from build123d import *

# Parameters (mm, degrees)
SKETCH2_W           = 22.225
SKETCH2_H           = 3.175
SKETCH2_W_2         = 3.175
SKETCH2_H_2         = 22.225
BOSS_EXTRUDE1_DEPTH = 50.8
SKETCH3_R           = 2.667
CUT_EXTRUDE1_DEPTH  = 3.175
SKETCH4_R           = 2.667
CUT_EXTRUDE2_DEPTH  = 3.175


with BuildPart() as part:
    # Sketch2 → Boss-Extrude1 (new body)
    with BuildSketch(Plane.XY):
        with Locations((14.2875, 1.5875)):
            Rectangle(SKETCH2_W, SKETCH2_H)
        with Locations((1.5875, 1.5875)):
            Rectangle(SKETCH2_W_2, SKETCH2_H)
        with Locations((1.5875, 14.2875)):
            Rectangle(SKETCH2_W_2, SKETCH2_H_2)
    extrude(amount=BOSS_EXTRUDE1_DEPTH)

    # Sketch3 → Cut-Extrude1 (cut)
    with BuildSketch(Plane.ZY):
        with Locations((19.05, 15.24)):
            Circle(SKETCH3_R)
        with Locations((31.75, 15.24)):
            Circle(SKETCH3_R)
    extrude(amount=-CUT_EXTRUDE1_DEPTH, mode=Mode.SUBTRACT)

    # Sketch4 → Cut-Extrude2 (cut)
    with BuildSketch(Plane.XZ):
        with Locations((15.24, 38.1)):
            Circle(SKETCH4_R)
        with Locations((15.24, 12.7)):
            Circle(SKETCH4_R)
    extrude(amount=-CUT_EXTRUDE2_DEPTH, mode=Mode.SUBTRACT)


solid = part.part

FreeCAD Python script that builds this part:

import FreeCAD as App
import Part
import Sketcher
from FreeCAD import Vector
Q = App.Units.Quantity

doc = App.newDocument("Part")
body = doc.addObject("PartDesign::Body", "Body")

sketch1 = body.newObject("Sketcher::SketchObject", "Sketch")
sketch1.AttachmentSupport = (doc.getObject("XY_Plane"), [""])
sketch1.MapMode = "FlatFace"
sketch1.addGeometry([
    Part.LineSegment(Vector(25.4, 0, 0), Vector(25.4, 3.2, 0)),
    Part.LineSegment(Vector(25.4, 3.2, 0), Vector(3.2, 3.2, 0)),
    Part.LineSegment(Vector(3.2, 3.2, 0), Vector(3.2, 25.4, 0)),
    Part.LineSegment(Vector(3.2, 25.4, 0), Vector(0, 25.4, 0)),
    Part.LineSegment(Vector(0, 25.4, 0), Vector(0, 0, 0)),
    Part.LineSegment(Vector(0, 0, 0), Vector(25.4, 0, 0)),
], False)
sketch1.addConstraint([
    Sketcher.Constraint("Coincident", 0, 2, 1, 1),
    Sketcher.Constraint("Coincident", 1, 2, 2, 1),
    Sketcher.Constraint("Coincident", 2, 2, 3, 1),
    Sketcher.Constraint("Coincident", 3, 2, 4, 1),
    Sketcher.Constraint("Coincident", 4, 2, 5, 1),
    Sketcher.Constraint("Coincident", 5, 2, 0, 1),
    Sketcher.Constraint("Vertical", 0),
    Sketcher.Constraint("Horizontal", 1),
    Sketcher.Constraint("Vertical", 2),
    Sketcher.Constraint("Horizontal", 3),
    Sketcher.Constraint("Vertical", 4),
    Sketcher.Constraint("Horizontal", 5),
    Sketcher.Constraint("Coincident", 4, 2, -1, 1),
    Sketcher.Constraint("Equal", 3, 0),
    Sketcher.Constraint("Equal", 1, 2),
    Sketcher.Constraint("DistanceX", 5, 1, 5, 2, Q("1 in")),
    Sketcher.Constraint("DistanceX", 1, 2, 1, 1, Q("0.875 in")),
])
pad1 = body.newObject("PartDesign::Pad", "Pad")
pad1.Profile = sketch1
pad1.Length = Q("2 in")

sketch2 = body.newObject("Sketcher::SketchObject", "Sketch001")
sketch2.AttachmentSupport = (doc.getObject("YZ_Plane"), [""])
sketch2.MapMode = "FlatFace"
sketch2.addGeometry([
    Part.Circle(Vector(15.2, 19.1, 0), Vector(0, 0, 1), 2.7),
    Part.Circle(Vector(15.2, 31.8, 0), Vector(0, 0, 1), 2.7),
], False)
sketch2.addConstraint([
    Sketcher.Constraint("Equal", 0, 1),
    Sketcher.Constraint("Vertical", 0, 3, 1, 3),
    Sketcher.Constraint("Diameter", 0, Q("0.21 in")),
    Sketcher.Constraint("DistanceX", -1, 1, 0, 3, Q("0.6 in")),
    Sketcher.Constraint("DistanceY", 0, 3, 1, 3, Q("0.5 in")),
    Sketcher.Constraint("DistanceY", -1, 1, 0, 3, Q("0.75 in")),
])
pocket1 = body.newObject("PartDesign::Pocket", "Pocket")
pocket1.Profile = sketch2
pocket1.Length = Q("0.125 in")
pocket1.Reversed = True

sketch3 = body.newObject("Sketcher::SketchObject", "Sketch002")
sketch3.AttachmentSupport = (doc.getObject("XZ_Plane"), [""])
sketch3.MapMode = "FlatFace"
sketch3.addGeometry([
    Part.Circle(Vector(15.2, 38.1, 0), Vector(0, 0, 1), 2.7),
    Part.Circle(Vector(15.2, 12.7, 0), Vector(0, 0, 1), 2.7),
], False)
sketch3.addConstraint([
    Sketcher.Constraint("Equal", 0, 1),
    Sketcher.Constraint("Vertical", 0, 3, 1, 3),
    Sketcher.Constraint("Diameter", 0, Q("0.21 in")),
    Sketcher.Constraint("DistanceY", 1, 3, 0, 3, Q("1 in")),
    Sketcher.Constraint("DistanceX", -1, 1, 0, 3, Q("0.6 in")),
    Sketcher.Constraint("DistanceY", -1, 1, 0, 3, Q("1.5 in")),
])
pocket2 = body.newObject("PartDesign::Pocket", "Pocket001")
pocket2.Profile = sketch3
pocket2.Length = Q("0.125 in")

doc.recompute()
